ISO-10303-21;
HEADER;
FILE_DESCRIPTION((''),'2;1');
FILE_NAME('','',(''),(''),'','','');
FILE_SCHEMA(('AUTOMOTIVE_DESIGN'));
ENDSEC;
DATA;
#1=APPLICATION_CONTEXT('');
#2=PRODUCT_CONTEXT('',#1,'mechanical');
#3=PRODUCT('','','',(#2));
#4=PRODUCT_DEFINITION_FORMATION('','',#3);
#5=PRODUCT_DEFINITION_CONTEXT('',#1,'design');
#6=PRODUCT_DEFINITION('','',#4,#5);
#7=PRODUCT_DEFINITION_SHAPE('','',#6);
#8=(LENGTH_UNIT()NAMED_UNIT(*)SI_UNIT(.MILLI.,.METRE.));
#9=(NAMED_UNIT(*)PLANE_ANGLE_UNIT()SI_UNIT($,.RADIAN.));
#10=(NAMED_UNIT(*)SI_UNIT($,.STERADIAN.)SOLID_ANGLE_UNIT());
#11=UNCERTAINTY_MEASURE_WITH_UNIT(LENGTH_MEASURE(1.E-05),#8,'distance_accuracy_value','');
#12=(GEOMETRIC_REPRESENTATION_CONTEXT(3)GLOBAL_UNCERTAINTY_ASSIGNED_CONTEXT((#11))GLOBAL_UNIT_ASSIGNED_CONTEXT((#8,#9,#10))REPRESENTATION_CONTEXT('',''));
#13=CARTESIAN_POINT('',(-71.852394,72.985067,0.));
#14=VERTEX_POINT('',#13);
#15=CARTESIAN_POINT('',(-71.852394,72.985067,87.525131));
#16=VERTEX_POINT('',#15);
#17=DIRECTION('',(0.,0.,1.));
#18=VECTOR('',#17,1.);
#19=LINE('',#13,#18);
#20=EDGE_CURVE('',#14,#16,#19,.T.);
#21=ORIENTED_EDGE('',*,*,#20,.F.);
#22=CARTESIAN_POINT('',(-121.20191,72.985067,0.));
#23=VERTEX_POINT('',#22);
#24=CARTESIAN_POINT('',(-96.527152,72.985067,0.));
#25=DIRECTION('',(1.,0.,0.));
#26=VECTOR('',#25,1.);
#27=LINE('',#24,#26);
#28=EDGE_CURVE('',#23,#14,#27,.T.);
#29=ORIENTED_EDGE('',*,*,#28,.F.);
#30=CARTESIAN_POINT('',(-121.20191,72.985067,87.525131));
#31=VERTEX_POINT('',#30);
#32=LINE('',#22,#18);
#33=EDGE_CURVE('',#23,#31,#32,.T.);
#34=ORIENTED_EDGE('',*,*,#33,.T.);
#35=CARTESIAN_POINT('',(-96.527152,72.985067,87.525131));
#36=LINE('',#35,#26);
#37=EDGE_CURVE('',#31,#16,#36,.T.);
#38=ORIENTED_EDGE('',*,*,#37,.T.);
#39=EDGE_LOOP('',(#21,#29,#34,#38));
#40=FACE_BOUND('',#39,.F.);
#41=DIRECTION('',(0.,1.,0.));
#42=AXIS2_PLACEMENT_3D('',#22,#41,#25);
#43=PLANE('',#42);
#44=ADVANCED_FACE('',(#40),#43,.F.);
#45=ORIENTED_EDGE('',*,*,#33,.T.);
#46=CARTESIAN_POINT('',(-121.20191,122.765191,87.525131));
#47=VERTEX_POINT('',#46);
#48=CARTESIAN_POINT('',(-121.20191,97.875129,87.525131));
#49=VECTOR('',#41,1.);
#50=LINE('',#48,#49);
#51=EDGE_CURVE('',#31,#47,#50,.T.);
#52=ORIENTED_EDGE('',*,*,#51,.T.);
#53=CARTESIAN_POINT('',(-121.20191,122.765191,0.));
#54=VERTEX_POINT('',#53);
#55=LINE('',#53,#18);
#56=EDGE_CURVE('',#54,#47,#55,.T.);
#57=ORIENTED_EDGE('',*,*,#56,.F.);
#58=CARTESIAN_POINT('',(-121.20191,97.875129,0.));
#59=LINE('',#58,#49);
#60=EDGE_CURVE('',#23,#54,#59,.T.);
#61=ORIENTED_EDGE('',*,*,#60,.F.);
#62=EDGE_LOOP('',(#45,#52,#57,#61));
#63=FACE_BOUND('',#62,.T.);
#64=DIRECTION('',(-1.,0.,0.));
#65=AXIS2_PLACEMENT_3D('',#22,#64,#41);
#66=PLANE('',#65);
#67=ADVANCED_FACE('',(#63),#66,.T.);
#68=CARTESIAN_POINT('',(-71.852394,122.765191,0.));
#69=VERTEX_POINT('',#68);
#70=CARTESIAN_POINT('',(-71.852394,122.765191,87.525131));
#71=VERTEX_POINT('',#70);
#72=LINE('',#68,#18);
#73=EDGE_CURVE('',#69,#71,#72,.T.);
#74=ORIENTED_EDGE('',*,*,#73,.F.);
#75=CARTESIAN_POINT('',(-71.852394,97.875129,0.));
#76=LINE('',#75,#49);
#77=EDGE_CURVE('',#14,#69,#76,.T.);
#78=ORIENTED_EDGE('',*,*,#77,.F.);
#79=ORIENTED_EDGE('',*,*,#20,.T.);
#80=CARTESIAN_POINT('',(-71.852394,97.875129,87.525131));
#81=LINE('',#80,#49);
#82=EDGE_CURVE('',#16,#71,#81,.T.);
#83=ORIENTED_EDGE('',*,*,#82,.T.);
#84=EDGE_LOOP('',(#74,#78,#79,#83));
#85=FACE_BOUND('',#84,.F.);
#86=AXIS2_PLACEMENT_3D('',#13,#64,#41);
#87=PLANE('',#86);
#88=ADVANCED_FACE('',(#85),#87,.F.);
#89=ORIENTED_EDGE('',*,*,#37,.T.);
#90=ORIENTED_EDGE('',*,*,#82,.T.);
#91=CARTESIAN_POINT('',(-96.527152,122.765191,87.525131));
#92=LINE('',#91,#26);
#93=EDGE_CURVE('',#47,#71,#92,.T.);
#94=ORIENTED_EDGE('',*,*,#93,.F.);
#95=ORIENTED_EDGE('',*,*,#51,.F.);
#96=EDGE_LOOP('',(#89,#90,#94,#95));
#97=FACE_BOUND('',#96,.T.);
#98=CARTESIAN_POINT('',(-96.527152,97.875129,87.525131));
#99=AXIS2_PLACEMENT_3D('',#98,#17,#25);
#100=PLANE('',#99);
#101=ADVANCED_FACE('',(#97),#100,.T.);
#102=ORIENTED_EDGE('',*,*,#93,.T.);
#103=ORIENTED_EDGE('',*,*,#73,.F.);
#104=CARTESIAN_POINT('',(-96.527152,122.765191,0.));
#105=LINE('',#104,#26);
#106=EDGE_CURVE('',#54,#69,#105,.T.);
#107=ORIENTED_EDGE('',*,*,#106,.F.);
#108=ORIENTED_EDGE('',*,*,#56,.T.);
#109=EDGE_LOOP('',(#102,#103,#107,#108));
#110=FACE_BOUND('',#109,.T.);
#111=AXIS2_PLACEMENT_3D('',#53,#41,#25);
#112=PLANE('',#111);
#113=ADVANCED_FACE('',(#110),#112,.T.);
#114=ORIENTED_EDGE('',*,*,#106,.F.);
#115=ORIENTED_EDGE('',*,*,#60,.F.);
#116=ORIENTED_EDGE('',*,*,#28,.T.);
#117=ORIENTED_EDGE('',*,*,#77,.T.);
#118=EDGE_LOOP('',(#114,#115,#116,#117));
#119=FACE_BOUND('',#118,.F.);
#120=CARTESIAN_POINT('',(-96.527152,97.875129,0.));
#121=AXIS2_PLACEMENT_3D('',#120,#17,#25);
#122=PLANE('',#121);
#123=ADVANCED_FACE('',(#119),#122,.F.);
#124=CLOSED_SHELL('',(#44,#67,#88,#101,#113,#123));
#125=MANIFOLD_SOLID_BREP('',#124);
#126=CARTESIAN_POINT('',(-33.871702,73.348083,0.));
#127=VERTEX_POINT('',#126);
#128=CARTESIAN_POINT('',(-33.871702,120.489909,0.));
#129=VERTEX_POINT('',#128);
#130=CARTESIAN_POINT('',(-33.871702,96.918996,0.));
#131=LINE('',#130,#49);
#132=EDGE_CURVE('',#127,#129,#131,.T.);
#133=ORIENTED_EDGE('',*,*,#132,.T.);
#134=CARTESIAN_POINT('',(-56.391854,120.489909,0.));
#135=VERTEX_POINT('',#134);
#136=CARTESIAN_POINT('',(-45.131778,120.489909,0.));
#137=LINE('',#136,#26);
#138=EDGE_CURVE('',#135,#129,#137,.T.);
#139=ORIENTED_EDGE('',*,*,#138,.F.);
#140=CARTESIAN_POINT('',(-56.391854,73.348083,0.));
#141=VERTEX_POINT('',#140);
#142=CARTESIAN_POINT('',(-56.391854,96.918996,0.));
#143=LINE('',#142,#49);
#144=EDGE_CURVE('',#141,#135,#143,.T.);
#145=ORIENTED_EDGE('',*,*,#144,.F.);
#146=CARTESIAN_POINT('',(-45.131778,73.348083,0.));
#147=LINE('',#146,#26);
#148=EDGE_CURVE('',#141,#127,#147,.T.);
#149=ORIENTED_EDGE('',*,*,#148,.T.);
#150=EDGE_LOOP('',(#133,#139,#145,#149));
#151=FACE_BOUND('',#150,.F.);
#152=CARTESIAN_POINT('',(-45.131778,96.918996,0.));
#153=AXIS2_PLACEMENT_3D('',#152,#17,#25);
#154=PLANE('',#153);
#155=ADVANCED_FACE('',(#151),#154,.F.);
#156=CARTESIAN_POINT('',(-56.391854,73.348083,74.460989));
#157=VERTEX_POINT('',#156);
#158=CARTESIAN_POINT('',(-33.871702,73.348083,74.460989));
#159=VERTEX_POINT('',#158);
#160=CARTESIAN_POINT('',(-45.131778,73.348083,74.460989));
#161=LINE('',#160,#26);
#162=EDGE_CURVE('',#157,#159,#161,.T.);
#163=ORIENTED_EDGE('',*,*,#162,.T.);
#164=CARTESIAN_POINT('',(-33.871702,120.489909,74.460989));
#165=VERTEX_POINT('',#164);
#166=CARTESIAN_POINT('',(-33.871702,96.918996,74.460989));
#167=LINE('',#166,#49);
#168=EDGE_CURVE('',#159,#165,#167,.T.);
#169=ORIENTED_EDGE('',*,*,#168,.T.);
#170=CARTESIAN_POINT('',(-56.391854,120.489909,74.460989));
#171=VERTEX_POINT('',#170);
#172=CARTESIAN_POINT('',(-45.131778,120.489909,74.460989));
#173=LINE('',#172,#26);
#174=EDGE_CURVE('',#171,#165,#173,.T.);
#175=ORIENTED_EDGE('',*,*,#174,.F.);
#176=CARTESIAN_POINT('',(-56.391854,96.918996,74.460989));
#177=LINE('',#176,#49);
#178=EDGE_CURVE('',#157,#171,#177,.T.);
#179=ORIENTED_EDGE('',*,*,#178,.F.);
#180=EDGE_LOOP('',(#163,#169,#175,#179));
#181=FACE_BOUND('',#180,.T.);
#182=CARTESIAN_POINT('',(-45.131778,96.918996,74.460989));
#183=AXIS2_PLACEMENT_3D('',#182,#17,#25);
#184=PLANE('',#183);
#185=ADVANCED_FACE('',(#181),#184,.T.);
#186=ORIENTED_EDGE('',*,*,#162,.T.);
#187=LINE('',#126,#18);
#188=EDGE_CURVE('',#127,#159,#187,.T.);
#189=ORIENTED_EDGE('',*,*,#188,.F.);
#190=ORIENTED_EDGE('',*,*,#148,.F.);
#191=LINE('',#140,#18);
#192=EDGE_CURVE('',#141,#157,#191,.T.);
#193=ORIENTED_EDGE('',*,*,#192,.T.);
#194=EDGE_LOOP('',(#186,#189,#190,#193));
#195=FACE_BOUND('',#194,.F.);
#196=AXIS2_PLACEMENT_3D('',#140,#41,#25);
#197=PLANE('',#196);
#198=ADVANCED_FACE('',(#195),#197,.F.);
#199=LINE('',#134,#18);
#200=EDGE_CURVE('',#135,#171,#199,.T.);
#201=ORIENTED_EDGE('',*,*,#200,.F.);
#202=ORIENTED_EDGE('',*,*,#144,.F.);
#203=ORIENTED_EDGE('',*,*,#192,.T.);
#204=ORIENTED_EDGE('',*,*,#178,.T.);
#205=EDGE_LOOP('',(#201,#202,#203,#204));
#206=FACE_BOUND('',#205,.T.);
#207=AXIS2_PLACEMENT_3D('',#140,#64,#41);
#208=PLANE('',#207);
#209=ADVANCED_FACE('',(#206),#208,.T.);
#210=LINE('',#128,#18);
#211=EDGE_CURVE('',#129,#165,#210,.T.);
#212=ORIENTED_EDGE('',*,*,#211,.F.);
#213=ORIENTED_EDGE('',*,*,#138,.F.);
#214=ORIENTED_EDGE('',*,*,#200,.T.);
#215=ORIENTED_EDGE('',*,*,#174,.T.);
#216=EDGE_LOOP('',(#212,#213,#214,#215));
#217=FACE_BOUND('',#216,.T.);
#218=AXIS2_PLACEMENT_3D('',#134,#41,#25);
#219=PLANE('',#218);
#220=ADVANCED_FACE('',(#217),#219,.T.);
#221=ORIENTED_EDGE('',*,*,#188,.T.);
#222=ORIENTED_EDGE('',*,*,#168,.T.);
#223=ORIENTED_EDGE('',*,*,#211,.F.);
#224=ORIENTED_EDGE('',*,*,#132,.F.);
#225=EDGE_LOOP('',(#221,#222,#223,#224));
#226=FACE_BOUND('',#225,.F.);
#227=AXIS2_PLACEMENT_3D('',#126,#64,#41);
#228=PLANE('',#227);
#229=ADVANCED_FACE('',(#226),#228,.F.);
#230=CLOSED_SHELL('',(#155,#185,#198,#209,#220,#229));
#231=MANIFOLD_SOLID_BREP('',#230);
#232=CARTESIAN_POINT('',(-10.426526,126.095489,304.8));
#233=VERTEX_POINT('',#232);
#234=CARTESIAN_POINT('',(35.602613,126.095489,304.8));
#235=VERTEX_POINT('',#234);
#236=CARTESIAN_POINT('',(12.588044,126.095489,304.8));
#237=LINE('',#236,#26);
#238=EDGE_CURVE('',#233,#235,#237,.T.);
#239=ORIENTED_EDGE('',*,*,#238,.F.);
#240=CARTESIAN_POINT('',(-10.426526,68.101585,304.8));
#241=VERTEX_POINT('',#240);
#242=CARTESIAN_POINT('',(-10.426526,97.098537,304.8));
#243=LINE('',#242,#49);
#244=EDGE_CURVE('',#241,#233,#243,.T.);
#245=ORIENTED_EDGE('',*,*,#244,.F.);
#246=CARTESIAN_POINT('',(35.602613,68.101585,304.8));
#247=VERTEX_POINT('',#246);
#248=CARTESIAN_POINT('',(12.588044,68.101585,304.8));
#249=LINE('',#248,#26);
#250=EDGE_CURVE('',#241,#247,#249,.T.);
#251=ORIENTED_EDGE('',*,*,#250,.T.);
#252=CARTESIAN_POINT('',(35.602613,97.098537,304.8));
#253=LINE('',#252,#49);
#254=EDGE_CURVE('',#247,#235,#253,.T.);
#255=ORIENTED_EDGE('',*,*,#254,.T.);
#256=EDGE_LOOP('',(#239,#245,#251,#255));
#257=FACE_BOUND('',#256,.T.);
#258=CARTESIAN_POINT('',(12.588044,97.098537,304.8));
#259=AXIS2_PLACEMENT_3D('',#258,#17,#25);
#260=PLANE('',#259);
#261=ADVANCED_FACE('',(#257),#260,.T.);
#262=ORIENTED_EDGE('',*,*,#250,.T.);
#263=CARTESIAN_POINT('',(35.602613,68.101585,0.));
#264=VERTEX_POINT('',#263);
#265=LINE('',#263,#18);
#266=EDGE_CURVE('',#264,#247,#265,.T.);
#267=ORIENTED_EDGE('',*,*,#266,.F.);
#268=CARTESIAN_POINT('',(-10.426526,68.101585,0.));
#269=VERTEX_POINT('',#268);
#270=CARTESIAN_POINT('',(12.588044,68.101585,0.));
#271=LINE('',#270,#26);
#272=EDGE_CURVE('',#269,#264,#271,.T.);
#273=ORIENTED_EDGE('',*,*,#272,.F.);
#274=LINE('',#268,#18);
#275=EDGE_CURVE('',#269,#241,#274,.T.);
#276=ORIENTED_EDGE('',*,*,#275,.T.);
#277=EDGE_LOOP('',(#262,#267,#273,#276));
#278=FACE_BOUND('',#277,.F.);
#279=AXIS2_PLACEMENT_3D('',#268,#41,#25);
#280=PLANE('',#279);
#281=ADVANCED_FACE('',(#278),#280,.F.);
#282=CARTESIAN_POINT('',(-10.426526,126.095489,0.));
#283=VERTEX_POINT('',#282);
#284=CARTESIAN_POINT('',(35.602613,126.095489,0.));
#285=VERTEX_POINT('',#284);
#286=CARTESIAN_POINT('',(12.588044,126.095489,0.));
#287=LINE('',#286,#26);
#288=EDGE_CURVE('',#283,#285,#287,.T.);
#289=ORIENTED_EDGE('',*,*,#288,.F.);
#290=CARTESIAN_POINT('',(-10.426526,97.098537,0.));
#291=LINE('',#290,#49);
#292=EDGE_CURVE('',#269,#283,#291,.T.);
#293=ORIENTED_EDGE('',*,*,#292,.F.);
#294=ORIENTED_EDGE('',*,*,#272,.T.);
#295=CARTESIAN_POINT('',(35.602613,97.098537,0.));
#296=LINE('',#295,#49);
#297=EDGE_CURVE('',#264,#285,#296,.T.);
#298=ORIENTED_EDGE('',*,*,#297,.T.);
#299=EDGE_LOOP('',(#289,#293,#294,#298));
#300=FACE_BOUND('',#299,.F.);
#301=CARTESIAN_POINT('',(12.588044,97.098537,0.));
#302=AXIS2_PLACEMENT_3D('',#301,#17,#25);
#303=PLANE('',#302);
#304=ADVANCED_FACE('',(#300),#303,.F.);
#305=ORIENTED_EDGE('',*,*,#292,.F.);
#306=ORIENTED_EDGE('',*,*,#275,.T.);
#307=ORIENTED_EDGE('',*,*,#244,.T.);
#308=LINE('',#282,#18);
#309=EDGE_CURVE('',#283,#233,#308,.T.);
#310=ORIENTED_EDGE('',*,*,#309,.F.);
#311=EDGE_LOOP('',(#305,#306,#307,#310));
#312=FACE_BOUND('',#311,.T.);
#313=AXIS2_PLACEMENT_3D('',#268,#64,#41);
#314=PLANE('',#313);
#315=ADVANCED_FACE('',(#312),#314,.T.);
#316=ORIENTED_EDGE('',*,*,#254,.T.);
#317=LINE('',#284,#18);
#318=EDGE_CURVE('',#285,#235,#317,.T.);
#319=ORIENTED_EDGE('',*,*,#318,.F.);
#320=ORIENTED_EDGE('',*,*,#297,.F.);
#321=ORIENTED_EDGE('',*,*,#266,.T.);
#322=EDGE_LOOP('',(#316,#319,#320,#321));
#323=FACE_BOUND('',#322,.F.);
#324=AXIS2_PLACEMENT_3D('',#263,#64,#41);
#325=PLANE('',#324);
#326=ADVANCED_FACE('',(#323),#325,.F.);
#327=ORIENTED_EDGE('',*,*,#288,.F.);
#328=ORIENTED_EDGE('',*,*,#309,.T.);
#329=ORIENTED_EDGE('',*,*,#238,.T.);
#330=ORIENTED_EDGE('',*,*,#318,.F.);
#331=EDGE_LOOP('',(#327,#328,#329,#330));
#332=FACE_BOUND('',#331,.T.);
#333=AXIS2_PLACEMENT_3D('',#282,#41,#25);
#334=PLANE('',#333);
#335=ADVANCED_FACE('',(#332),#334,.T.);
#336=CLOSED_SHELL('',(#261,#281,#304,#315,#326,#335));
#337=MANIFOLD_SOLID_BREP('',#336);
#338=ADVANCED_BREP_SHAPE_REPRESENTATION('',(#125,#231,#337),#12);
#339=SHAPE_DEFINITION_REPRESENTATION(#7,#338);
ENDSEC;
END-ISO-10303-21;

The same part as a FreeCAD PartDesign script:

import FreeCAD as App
import Part
import Sketcher
Q = App.Units.Quantity

doc = App.newDocument("Part")
params = doc.addObject("Spreadsheet::Sheet", "Params")
for row, (alias, value) in enumerate([
    ("pad1_length", "87.525131 mm"),
    ("pad2_length", "74.460989 mm"),
    ("pad3_length", "12 in"),
], start=1):
    params.set(f"A{row}", alias)
    params.set(f"B{row}", "=" + value)
    params.setAlias(f"B{row}", alias)

body = doc.addObject("PartDesign::Body", "Body")

# Sketch on XY plane
sketch1 = doc.addObject("Sketcher::SketchObject", "Sketch")
body.addObject(sketch1)
sketch1.AttachmentSupport = (doc.XY_Plane, [""])
sketch1.MapMode = "FlatFace"
sketch1.addGeometry([
    Part.LineSegment(App.Vector(-121, 123, 0), App.Vector(-121, 73, 0)),
    Part.LineSegment(App.Vector(-121, 73, 0), App.Vector(-72, 73, 0)),
    Part.LineSegment(App.Vector(-72, 73, 0), App.Vector(-72, 123, 0)),
    Part.LineSegment(App.Vector(-72, 123, 0), App.Vector(-121, 123, 0)),
], False)
sketch1.addConstraint([
    Sketcher.Constraint("Coincident", 0, 2, 1, 1),
    Sketcher.Constraint("Coincident", 1, 2, 2, 1),
    Sketcher.Constraint("Coincident", 2, 2, 3, 1),
    Sketcher.Constraint("Coincident", 3, 2, 0, 1),
    Sketcher.Constraint("Vertical", 0),
    Sketcher.Constraint("Horizontal", 1),
    Sketcher.Constraint("Vertical", 2),
    Sketcher.Constraint("Horizontal", 3),
    Sketcher.Constraint("DistanceX", 1, 1, 1, 2, Q("49.349517 mm")),
    Sketcher.Constraint("DistanceY", 0, 2, 0, 1, Q("49.780123 mm")),
    Sketcher.Constraint("DistanceX", 0, 2, -1, 1, Q("121.20191 mm")),
    Sketcher.Constraint("DistanceY", -1, 1, 2, 2, Q("122.765191 mm")),
])
pad1 = doc.addObject("PartDesign::Pad", "Pad")
body.addObject(pad1)
pad1.Profile = sketch1
pad1.setExpression("Length", "Params.pad1_length")
body2 = doc.addObject("PartDesign::Body", "Body001")

# Sketch on XY plane
sketch2 = doc.addObject("Sketcher::SketchObject", "Sketch001")
body2.addObject(sketch2)
sketch2.AttachmentSupport = (doc.getObject("XY_Plane001"), [""])
sketch2.MapMode = "FlatFace"
sketch2.addGeometry([
    Part.LineSegment(App.Vector(-56, 120, 0), App.Vector(-56, 73, 0)),
    Part.LineSegment(App.Vector(-56, 73, 0), App.Vector(-34, 73, 0)),
    Part.LineSegment(App.Vector(-34, 73, 0), App.Vector(-34, 120, 0)),
    Part.LineSegment(App.Vector(-34, 120, 0), App.Vector(-56, 120, 0)),
], False)
sketch2.addConstraint([
    Sketcher.Constraint("Coincident", 0, 2, 1, 1),
    Sketcher.Constraint("Coincident", 1, 2, 2, 1),
    Sketcher.Constraint("Coincident", 2, 2, 3, 1),
    Sketcher.Constraint("Coincident", 3, 2, 0, 1),
    Sketcher.Constraint("Vertical", 0),
    Sketcher.Constraint("Horizontal", 1),
    Sketcher.Constraint("Vertical", 2),
    Sketcher.Constraint("Horizontal", 3),
    Sketcher.Constraint("DistanceX", 1, 1, 1, 2, Q("22.520151 mm")),
    Sketcher.Constraint("DistanceY", 0, 2, 0, 1, Q("47.141827 mm")),
    Sketcher.Constraint("DistanceY", -1, 1, 2, 2, Q("120.489909 mm")),
    Sketcher.Constraint("DistanceX", 0, 2, -1, 1, Q("56.391854 mm")),
])
pad2 = doc.addObject("PartDesign::Pad", "Pad001")
body2.addObject(pad2)
pad2.Profile = sketch2
pad2.setExpression("Length", "Params.pad2_length")
body3 = doc.addObject("PartDesign::Body", "Body002")

# Sketch on XY plane
sketch3 = doc.addObject("Sketcher::SketchObject", "Sketch002")
body3.addObject(sketch3)
sketch3.AttachmentSupport = (doc.getObject("XY_Plane002"), [""])
sketch3.MapMode = "FlatFace"
sketch3.addGeometry([
    Part.LineSegment(App.Vector(-10, 126, 0), App.Vector(-10, 68, 0)),
    Part.LineSegment(App.Vector(-10, 68, 0), App.Vector(36, 68, 0)),
    Part.LineSegment(App.Vector(36, 68, 0), App.Vector(36, 126, 0)),
    Part.LineSegment(App.Vector(36, 126, 0), App.Vector(-10, 126, 0)),
], False)
sketch3.addConstraint([
    Sketcher.Constraint("Coincident", 0, 2, 1, 1),
    Sketcher.Constraint("Coincident", 1, 2, 2, 1),
    Sketcher.Constraint("Coincident", 2, 2, 3, 1),
    Sketcher.Constraint("Coincident", 3, 2, 0, 1),
    Sketcher.Constraint("Vertical", 0),
    Sketcher.Constraint("Horizontal", 1),
    Sketcher.Constraint("Vertical", 2),
    Sketcher.Constraint("Horizontal", 3),
    Sketcher.Constraint("DistanceX", 1, 1, 1, 2, Q("46.029139 mm")),
    Sketcher.Constraint("DistanceY", 0, 2, 0, 1, Q("57.993904 mm")),
    Sketcher.Constraint("DistanceY", -1, 1, 2, 2, Q("126.095489 mm")),
    Sketcher.Constraint("DistanceX", 0, 2, -1, 1, Q("10.426526 mm")),
])
pad3 = doc.addObject("PartDesign::Pad", "Pad002")
body3.addObject(pad3)
pad3.Profile = sketch3
pad3.setExpression("Length", "Params.pad3_length")

doc.recompute()
